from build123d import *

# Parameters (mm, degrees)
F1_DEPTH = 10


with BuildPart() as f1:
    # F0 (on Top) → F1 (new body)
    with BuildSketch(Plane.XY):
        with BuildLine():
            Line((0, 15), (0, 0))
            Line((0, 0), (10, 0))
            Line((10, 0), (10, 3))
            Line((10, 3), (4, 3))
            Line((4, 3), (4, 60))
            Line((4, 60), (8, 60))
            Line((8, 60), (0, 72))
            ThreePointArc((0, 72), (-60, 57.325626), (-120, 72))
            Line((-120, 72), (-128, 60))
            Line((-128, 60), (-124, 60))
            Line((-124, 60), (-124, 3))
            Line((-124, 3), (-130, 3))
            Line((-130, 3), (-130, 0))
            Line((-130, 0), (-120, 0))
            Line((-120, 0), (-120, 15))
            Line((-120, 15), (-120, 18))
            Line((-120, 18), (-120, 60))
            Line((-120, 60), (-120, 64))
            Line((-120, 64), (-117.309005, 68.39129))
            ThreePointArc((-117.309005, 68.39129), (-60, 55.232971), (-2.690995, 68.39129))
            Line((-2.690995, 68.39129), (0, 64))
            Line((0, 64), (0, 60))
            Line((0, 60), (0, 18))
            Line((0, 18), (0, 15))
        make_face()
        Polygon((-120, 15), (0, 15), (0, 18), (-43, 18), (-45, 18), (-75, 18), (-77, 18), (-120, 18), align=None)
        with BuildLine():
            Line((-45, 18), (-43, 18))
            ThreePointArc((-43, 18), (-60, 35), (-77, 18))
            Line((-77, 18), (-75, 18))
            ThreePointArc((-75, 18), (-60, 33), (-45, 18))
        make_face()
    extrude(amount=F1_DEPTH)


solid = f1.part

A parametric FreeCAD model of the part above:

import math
import FreeCAD as App
import Part
import Sketcher

V = App.Vector

doc = App.newDocument("Part")
params = doc.addObject("Spreadsheet::Sheet", "Params")
for row, (alias, value) in enumerate([
    ("sketch1_radius", "130 mm"),
    ("sketch1_radius2", "17 mm"),
    ("sketch1_radius3", "15 mm"),
    ("sketch1_width", "10 mm"),
    ("sketch1_width2", "6 mm"),
    ("pad1_length", "10 mm"),
], start=1):
    params.set(f"A{row}", alias)
    params.set(f"B{row}", "=" + value)
    params.setAlias(f"B{row}", alias)

body = doc.addObject("PartDesign::Body", "Body")

# Sketch on XY plane
sketch1 = body.newObject("Sketcher::SketchObject", "Sketch")
sketch1.AttachmentSupport = (doc.getObject("XY_Plane"), [""])
sketch1.MapMode = "FlatFace"
sketch1.addGeometry([
    Part.LineSegment(V(0, 0, 0), V(10, 0, 0)),  # 0
    Part.LineSegment(V(10, 0, 0), V(10, 3, 0)),  # 1
    Part.LineSegment(V(10, 3, 0), V(4, 3, 0)),  # 2
    Part.LineSegment(V(4, 3, 0), V(4, 60, 0)),  # 3
    Part.LineSegment(V(4, 60, 0), V(8, 60, 0)),  # 4
    Part.LineSegment(V(8, 60, 0), V(0, 72, 0)),  # 5
    Part.ArcOfCircle(Part.Circle(V(-60, 187.3, 0), V(0, 0, 1), 130), math.radians(-117), math.radians(-63)),  # 6
    Part.LineSegment(V(-120, 72, 0), V(-128, 60, 0)),  # 7
    Part.LineSegment(V(-128, 60, 0), V(-124, 60, 0)),  # 8
    Part.LineSegment(V(-124, 60, 0), V(-124, 3, 0)),  # 9
    Part.LineSegment(V(-124, 3, 0), V(-130, 3, 0)),  # 10
    Part.LineSegment(V(-130, 3, 0), V(-130, 0, 0)),  # 11
    Part.LineSegment(V(-130, 0, 0), V(-120, 0, 0)),  # 12
    Part.LineSegment(V(-120, 0, 0), V(-120, 15, 0)),  # 13
    Part.LineSegment(V(-120, 15, 0), V(0, 15, 0)),  # 14
    Part.LineSegment(V(0, 15, 0), V(0, 0, 0)),  # 15
    Part.LineSegment(V(-120, 18, 0), V(-120, 64, 0)),  # 16
    Part.LineSegment(V(-120, 64, 0), V(-117.3, 68.4, 0)),  # 17
    Part.ArcOfCircle(Part.Circle(V(-60, 186.6, 0), V(0, 0, 1), 131.4), math.radians(-116), math.radians(-64)),  # 18
    Part.LineSegment(V(-2.7, 68.4, 0), V(0, 64, 0)),  # 19
    Part.LineSegment(V(0, 64, 0), V(0, 18, 0)),  # 20
    Part.LineSegment(V(0, 18, 0), V(-43, 18, 0)),  # 21
    Part.ArcOfCircle(Part.Circle(V(-60, 18, 0), V(0, 0, 1), 17), math.radians(0), math.radians(180)),  # 22
    Part.LineSegment(V(-77, 18, 0), V(-120, 18, 0)),  # 23
    Part.LineSegment(V(-45, 18, 0), V(-75, 18, 0)),  # 24
    Part.ArcOfCircle(Part.Circle(V(-60, 18, 0), V(0, 0, 1), 15), math.radians(0), math.radians(180)),  # 25
], False)
sketch1.addConstraint([
    Sketcher.Constraint("Coincident", 0, 2, 1, 1),
    Sketcher.Constraint("Coincident", 1, 2, 2, 1),
    Sketcher.Constraint("Coincident", 2, 2, 3, 1),
    Sketcher.Constraint("Coincident", 3, 2, 4, 1),
    Sketcher.Constraint("Coincident", 4, 2, 5, 1),
    Sketcher.Constraint("Coincident", 5, 2, 6, 2),
    Sketcher.Constraint("Coincident", 6, 1, 7, 1),
    Sketcher.Constraint("Coincident", 7, 2, 8, 1),
    Sketcher.Constraint("Coincident", 8, 2, 9, 1),
    Sketcher.Constraint("Coincident", 9, 2, 10, 1),
    Sketcher.Constraint("Coincident", 10, 2, 11, 1),
    Sketcher.Constraint("Coincident", 11, 2, 12, 1),
    Sketcher.Constraint("Coincident", 12, 2, 13, 1),
    Sketcher.Constraint("Coincident", 13, 2, 14, 1),
    Sketcher.Constraint("Coincident", 14, 2, 15, 1),
    Sketcher.Constraint("Coincident", 15, 2, 0, 1),
    Sketcher.Constraint("Coincident", 16, 2, 17, 1),
    Sketcher.Constraint("Coincident", 17, 2, 18, 1),
    Sketcher.Constraint("Coincident", 18, 2, 19, 1),
    Sketcher.Constraint("Coincident", 19, 2, 20, 1),
    Sketcher.Constraint("Coincident", 20, 2, 21, 1),
    Sketcher.Constraint("Coincident", 21, 2, 22, 1),
    Sketcher.Constraint("Coincident", 22, 2, 23, 1),
    Sketcher.Constraint("Coincident", 23, 2, 16, 1),
    Sketcher.Constraint("Coincident", 24, 1, 25, 1),
    Sketcher.Constraint("Coincident", 25, 2, 24, 2),
    Sketcher.Constraint("Horizontal", 0),
    Sketcher.Constraint("Vertical", 1),
    Sketcher.Constraint("Horizontal", 2),
    Sketcher.Constraint("Vertical", 3),
    Sketcher.Constraint("Horizontal", 4),
    Sketcher.Constraint("Horizontal", 8),
    Sketcher.Constraint("Vertical", 9),
    Sketcher.Constraint("Horizontal", 10),
    Sketcher.Constraint("Vertical", 11),
    Sketcher.Constraint("Horizontal", 12),
    Sketcher.Constraint("Vertical", 13),
    Sketcher.Constraint("Horizontal", 14),
    Sketcher.Constraint("Vertical", 15),
    Sketcher.Constraint("Vertical", 16),
    Sketcher.Constraint("Vertical", 20),
    Sketcher.Constraint("Horizontal", 21),
    Sketcher.Constraint("Horizontal", 23),
    Sketcher.Constraint("Horizontal", 24),
    Sketcher.Constraint("Coincident", 15, 2, -1, 1),
    Sketcher.Constraint("Coincident", 25, 3, 22, 3),
    Sketcher.Constraint("PointOnObject", 5, 2, -2),
    Sketcher.Constraint("PointOnObject", 11, 2, -1),
    Sketcher.Constraint("PointOnObject", 19, 2, -2),
    Sketcher.Constraint("Horizontal", 5, 2, 6, 1),
    Sketcher.Constraint("Horizontal", 4, 2, 7, 2),
    Sketcher.Constraint("Horizontal", 2, 2, 9, 2),
    Sketcher.Constraint("Horizontal", 17, 2, 18, 2),
    Sketcher.Constraint("Horizontal", 16, 2, 19, 2),
    Sketcher.Constraint("Horizontal", 25, 3, 20, 2),
    Sketcher.Constraint("Horizontal", 21, 2, 22, 2),
    Sketcher.Constraint("Horizontal", 23, 2, 24, 1),
    Sketcher.Constraint("Vertical", 6, 3, 18, 3),
    Sketcher.Constraint("Vertical", 18, 3, 22, 3),
    Sketcher.Constraint("Vertical", 6, 1, 12, 2),
    Sketcher.Constraint("Vertical", 13, 2, 16, 2),
    Sketcher.Constraint("Equal", 4, 8),
    Sketcher.Constraint("Equal", 2, 10),
    Sketcher.Constraint("Equal", 0, 12),
    Sketcher.Constraint("Radius", 6, 130.0),
    Sketcher.Constraint("Radius", 22, 17.0),
    Sketcher.Constraint("Radius", 25, 15.0),
    Sketcher.Constraint("DistanceX", 0, 1, 0, 2, 10.0),
    Sketcher.Constraint("DistanceX", 2, 2, 2, 1, 6.0),
    Sketcher.Constraint("DistanceX", 4, 1, 4, 2, 4.0),
    Sketcher.Constraint("DistanceX", 14, 1, 14, 2, 120.0),
    Sketcher.Constraint("DistanceY", 1, 1, 1, 2, 3.0),
    Sketcher.Constraint("DistanceY", 3, 1, 3, 2, 57.0),
    Sketcher.Constraint("DistanceY", 13, 1, 13, 2, 15.0),
    Sketcher.Constraint("DistanceY", 16, 1, 16, 2, 46.0),
    Sketcher.Constraint("DistanceY", -1, 1, 22, 3, 18.0),
    Sketcher.Constraint("DistanceY", -1, 1, 5, 2, 72.0),
    Sketcher.Constraint("Radius", 18, 131.379373),
    Sketcher.Constraint("Distance", 17, 5.150231),
    Sketcher.Constraint("DistanceY", -1, 1, 17, 2, 68.39129),
])
sketch1.setExpression("Constraints[64]", "Params.sketch1_radius")
sketch1.setExpression("Constraints[65]", "Params.sketch1_radius2")
sketch1.setExpression("Constraints[66]", "Params.sketch1_radius3")
sketch1.setExpression("Constraints[67]", "Params.sketch1_width")
sketch1.setExpression("Constraints[68]", "Params.sketch1_width2")
pad1 = body.newObject("PartDesign::Pad", "Pad")
pad1.Profile = sketch1
pad1.setExpression("Length", "Params.pad1_length")

doc.recompute()
